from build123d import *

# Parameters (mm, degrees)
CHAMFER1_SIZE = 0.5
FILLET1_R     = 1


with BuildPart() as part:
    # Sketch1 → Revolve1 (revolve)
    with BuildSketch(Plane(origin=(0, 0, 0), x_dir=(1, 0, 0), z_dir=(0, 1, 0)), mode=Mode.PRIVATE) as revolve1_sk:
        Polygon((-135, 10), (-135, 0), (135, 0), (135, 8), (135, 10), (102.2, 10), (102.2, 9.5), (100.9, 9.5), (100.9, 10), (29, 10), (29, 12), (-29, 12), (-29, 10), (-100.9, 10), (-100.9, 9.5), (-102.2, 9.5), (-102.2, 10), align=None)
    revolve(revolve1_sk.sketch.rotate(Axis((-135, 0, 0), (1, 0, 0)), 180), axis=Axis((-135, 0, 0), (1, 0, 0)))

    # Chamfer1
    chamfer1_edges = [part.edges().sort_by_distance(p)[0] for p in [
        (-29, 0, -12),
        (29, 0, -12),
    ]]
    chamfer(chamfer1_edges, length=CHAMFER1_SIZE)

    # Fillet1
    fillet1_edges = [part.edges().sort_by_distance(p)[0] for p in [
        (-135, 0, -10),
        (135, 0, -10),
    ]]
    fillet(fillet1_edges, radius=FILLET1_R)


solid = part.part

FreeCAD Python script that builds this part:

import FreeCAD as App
import Part
import Sketcher

V = App.Vector


def edges_at(feature, points):
    """Names of the edges that pass closest to the given points."""
    edges = feature.Shape.Edges
    near = lambda p: min(range(len(edges)), key=lambda i: edges[i].distToShape(Part.Vertex(*p))[0])
    return sorted({f"Edge{near(p) + 1}" for p in points})

doc = App.newDocument("Part")
body = doc.addObject("PartDesign::Body", "Body")

# Sketch on XZ plane
sketch1 = body.newObject("Sketcher::SketchObject", "Sketch")
sketch1.AttachmentSupport = (doc.getObject("XZ_Plane"), [""])
sketch1.MapMode = "FlatFace"
sketch1.addGeometry([
    Part.LineSegment(V(-135, -10, 0), V(-135, 0, 0)),  # 0
    Part.LineSegment(V(-135, 0, 0), V(135, 0, 0)),  # 1
    Part.LineSegment(V(135, 0, 0), V(135, -10, 0)),  # 2
    Part.LineSegment(V(135, -10, 0), V(102.2, -10, 0)),  # 3
    Part.LineSegment(V(102.2, -10, 0), V(102.2, -9.5, 0)),  # 4
    Part.LineSegment(V(102.2, -9.5, 0), V(100.9, -9.5, 0)),  # 5
    Part.LineSegment(V(100.9, -9.5, 0), V(100.9, -10, 0)),  # 6
    Part.LineSegment(V(100.9, -10, 0), V(29, -10, 0)),  # 7
    Part.LineSegment(V(29, -10, 0), V(29, -12, 0)),  # 8
    Part.LineSegment(V(29, -12, 0), V(-29, -12, 0)),  # 9
    Part.LineSegment(V(-29, -12, 0), V(-29, -10, 0)),  # 10
    Part.LineSegment(V(-29, -10, 0), V(-100.9, -10, 0)),  # 11
    Part.LineSegment(V(-100.9, -10, 0), V(-100.9, -9.5, 0)),  # 12
    Part.LineSegment(V(-100.9, -9.5, 0), V(-102.2, -9.5, 0)),  # 13
    Part.LineSegment(V(-102.2, -9.5, 0), V(-102.2, -10, 0)),  # 14
    Part.LineSegment(V(-102.2, -10, 0), V(-135, -10, 0)),  # 15
], False)
sketch1.addConstraint([
    Sketcher.Constraint("Coincident", 0, 2, 1, 1),
    Sketcher.Constraint("Coincident", 1, 2, 2, 1),
    Sketcher.Constraint("Coincident", 2, 2, 3, 1),
    Sketcher.Constraint("Coincident", 3, 2, 4, 1),
    Sketcher.Constraint("Coincident", 4, 2, 5, 1),
    Sketcher.Constraint("Coincident", 5, 2, 6, 1),
    Sketcher.Constraint("Coincident", 6, 2, 7, 1),
    Sketcher.Constraint("Coincident", 7, 2, 8, 1),
    Sketcher.Constraint("Coincident", 8, 2, 9, 1),
    Sketcher.Constraint("Coincident", 9, 2, 10, 1),
    Sketcher.Constraint("Coincident", 10, 2, 11, 1),
    Sketcher.Constraint("Coincident", 11, 2, 12, 1),
    Sketcher.Constraint("Coincident", 12, 2, 13, 1),
    Sketcher.Constraint("Coincident", 13, 2, 14, 1),
    Sketcher.Constraint("Coincident", 14, 2, 15, 1),
    Sketcher.Constraint("Coincident", 15, 2, 0, 1),
    Sketcher.Constraint("Vertical", 0),
    Sketcher.Constraint("Horizontal", 1),
    Sketcher.Constraint("Vertical", 2),
    Sketcher.Constraint("Horizontal", 3),
    Sketcher.Constraint("Vertical", 4),
    Sketcher.Constraint("Horizontal", 5),
    Sketcher.Constraint("Vertical", 6),
    Sketcher.Constraint("Horizontal", 7),
    Sketcher.Constraint("Vertical", 8),
    Sketcher.Constraint("Horizontal", 9),
    Sketcher.Constraint("Vertical", 10),
    Sketcher.Constraint("Horizontal", 11),
    Sketcher.Constraint("Vertical", 12),
    Sketcher.Constraint("Horizontal", 13),
    Sketcher.Constraint("Vertical", 14),
    Sketcher.Constraint("Horizontal", 15),
    Sketcher.Constraint("Symmetric", 0, 2, 1, 2, -1, 1),
    Sketcher.Constraint("Symmetric", 7, 2, 10, 2, -2),
    Sketcher.Constraint("Symmetric", 5, 2, 12, 2, -2),
    Sketcher.Constraint("Symmetric", 3, 2, 14, 2, -2),
    Sketcher.Constraint("Horizontal", 3, 2, 6, 2),
    Sketcher.Constraint("DistanceX", 1, 1, 1, 2, 270.0),
    Sketcher.Constraint("DistanceX", 9, 2, 9, 1, 58.0),
    Sketcher.Constraint("DistanceY", 0, 1, 0, 2, 10.0),
    Sketcher.Constraint("DistanceY", 8, 2, 8, 1, 2.0),
    Sketcher.Constraint("DistanceX", 3, 2, 3, 1, 32.8),
    Sketcher.Constraint("DistanceX", 5, 2, 5, 1, 1.3),
    Sketcher.Constraint("DistanceY", 4, 1, 4, 2, 0.5),
])
revolution = body.newObject("PartDesign::Revolution", "Revolution")
revolution.Profile = sketch1
revolution.ReferenceAxis = (sketch1, ["H_Axis"])
revolution.Angle = 360
doc.recompute()

chamfer = body.newObject("PartDesign::Chamfer", "Chamfer")
chamfer.Base = (revolution, edges_at(revolution, [(-29, 0, -12), (29, 0, -12)]))
chamfer.Size = 0.5
doc.recompute()

fillet = body.newObject("PartDesign::Fillet", "Fillet")
fillet.Base = (chamfer, edges_at(chamfer, [(-135, 0, -10), (135, 0, -10)]))
fillet.Radius = 1

doc.recompute()
